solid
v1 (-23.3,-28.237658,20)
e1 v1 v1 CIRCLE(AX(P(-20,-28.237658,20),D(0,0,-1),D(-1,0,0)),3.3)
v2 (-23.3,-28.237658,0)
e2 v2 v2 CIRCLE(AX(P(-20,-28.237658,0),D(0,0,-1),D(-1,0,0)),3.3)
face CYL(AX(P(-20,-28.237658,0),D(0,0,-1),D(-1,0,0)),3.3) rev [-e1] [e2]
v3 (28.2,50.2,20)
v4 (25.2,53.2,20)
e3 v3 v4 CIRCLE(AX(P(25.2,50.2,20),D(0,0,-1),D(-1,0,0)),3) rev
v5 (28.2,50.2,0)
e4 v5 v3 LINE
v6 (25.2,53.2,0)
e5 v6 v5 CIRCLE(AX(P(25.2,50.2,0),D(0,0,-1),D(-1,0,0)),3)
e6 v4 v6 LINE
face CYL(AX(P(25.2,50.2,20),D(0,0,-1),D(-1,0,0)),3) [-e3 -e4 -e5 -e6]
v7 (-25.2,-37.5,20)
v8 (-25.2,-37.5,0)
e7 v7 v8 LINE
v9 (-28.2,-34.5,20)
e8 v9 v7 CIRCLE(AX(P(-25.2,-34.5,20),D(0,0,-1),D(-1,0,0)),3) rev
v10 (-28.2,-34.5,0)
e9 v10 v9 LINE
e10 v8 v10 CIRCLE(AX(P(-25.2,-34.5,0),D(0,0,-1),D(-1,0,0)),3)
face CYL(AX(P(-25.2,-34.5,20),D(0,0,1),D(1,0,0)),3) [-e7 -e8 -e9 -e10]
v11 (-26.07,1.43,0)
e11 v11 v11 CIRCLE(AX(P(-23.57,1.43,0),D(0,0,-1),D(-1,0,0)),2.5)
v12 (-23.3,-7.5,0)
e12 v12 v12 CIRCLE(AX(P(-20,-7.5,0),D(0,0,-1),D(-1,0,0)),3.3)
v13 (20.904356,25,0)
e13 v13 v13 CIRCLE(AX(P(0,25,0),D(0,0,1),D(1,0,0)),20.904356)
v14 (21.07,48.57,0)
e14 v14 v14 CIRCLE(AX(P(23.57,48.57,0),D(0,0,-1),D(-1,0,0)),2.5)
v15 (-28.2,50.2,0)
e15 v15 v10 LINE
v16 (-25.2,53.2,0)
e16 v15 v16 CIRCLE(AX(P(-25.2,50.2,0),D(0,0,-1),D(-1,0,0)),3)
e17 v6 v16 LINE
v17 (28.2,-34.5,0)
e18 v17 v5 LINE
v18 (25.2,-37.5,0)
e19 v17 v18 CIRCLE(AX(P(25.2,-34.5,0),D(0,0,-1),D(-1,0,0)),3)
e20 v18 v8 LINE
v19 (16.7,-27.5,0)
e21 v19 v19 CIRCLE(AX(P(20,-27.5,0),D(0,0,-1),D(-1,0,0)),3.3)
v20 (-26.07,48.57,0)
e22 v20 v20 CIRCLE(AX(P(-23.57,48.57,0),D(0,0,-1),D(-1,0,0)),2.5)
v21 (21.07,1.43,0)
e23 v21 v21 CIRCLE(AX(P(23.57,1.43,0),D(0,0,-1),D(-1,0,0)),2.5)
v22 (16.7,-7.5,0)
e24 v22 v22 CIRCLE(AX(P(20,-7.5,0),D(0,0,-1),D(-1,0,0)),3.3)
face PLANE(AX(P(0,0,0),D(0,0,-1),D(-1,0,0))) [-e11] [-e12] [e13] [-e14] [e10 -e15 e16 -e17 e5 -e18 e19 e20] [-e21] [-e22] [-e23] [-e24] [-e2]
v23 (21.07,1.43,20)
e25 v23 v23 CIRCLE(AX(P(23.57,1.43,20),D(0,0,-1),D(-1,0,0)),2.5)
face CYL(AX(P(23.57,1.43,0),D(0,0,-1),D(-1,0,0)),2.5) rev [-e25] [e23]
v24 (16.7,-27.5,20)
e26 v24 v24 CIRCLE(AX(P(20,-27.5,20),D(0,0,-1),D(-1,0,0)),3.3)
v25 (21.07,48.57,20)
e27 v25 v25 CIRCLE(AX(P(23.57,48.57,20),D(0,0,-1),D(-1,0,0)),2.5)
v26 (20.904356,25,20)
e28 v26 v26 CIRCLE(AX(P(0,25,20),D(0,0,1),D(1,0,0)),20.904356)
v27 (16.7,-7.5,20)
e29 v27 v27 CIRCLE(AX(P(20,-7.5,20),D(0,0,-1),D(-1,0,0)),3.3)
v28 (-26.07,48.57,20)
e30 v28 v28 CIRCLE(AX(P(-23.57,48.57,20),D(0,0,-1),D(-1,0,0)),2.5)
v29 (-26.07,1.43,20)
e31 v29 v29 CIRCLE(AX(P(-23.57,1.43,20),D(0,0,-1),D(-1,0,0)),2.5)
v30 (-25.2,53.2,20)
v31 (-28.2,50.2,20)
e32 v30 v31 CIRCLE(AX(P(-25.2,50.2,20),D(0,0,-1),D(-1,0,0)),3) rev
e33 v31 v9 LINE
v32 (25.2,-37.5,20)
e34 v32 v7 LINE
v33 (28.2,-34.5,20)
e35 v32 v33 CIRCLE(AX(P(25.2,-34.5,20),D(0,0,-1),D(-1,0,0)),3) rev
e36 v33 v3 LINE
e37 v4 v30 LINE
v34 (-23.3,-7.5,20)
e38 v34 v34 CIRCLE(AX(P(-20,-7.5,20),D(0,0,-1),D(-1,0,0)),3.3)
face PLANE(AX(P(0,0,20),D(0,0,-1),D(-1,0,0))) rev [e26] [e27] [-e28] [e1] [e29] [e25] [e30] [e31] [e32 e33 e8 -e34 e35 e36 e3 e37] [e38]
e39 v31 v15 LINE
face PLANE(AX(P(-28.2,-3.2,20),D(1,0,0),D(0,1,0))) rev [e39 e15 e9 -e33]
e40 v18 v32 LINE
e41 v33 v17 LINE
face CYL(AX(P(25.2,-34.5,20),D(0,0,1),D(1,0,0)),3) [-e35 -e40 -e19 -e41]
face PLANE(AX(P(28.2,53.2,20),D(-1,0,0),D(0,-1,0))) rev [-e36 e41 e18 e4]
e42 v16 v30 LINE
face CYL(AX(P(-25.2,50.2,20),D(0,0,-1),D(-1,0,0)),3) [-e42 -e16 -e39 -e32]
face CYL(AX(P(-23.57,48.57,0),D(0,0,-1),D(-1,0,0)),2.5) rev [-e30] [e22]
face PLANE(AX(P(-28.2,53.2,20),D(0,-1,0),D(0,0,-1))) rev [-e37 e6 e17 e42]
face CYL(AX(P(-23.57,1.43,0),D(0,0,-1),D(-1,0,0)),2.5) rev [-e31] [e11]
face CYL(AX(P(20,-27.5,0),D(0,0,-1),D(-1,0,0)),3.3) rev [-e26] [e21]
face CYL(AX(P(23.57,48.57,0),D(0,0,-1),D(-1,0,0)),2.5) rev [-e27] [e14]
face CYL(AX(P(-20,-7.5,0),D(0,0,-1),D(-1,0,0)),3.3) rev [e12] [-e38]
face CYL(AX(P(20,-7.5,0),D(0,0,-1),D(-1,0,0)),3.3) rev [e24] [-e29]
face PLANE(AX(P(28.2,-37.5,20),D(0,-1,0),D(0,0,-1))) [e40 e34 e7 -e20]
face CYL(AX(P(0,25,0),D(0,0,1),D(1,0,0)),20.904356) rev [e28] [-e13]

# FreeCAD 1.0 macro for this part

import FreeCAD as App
import Part
import Sketcher

V = App.Vector
Q = App.Units.Quantity


def edges_at(feature, points):
    """Names of the edges that pass closest to the given points."""
    edges = feature.Shape.Edges
    near = lambda p: min(range(len(edges)), key=lambda i: edges[i].distToShape(Part.Vertex(*p))[0])
    return sorted({f"Edge{near(p) + 1}" for p in points})

doc = App.newDocument("Part")
body = doc.addObject("PartDesign::Body", "Body")

sketch1 = body.newObject("Sketcher::SketchObject", "Sketch")
sketch1.AttachmentSupport = (doc.getObject("XY_Plane"), [""])
sketch1.MapMode = "FlatFace"
sketch1.addGeometry(Part.LineSegment(V(-28.2, 53.2, 0), V(-28.2, -3.2, 0)), False)
sketch1.addGeometry(Part.LineSegment(V(-28.2, -3.2, 0), V(28.2, -3.2, 0)), False)
sketch1.addGeometry(Part.LineSegment(V(28.2, -3.2, 0), V(28.2, 53.2, 0)), False)
sketch1.addGeometry(Part.LineSegment(V(28.2, 53.2, 0), V(-28.2, 53.2, 0)), False)
sketch1.addConstraint(Sketcher.Constraint("Coincident", 0, 2, 1, 1))
sketch1.addConstraint(Sketcher.Constraint("Coincident", 1, 2, 2, 1))
sketch1.addConstraint(Sketcher.Constraint("Coincident", 2, 2, 3, 1))
sketch1.addConstraint(Sketcher.Constraint("Coincident", 3, 2, 0, 1))
sketch1.addConstraint(Sketcher.Constraint("Vertical", 0))
sketch1.addConstraint(Sketcher.Constraint("Horizontal", 1))
sketch1.addConstraint(Sketcher.Constraint("Vertical", 2))
sketch1.addConstraint(Sketcher.Constraint("Horizontal", 3))
sketch1.addConstraint(Sketcher.Constraint("Equal", 3, 0))
sketch1.addConstraint(Sketcher.Constraint("DistanceX", 1, 1, 1, 2, Q("56.4 mm")))
sketch1.addConstraint(Sketcher.Constraint("DistanceX", 0, 2, -1, 1, Q("28.2 mm")))
sketch1.addConstraint(Sketcher.Constraint("DistanceY", 0, 2, -1, 1, Q("3.2 mm")))
pad1 = body.newObject("PartDesign::Pad", "Pad")
pad1.Profile = sketch1
pad1.Length = 20

sketch2 = body.newObject("Sketcher::SketchObject", "Sketch001")
sketch2.AttachmentSupport = (doc.getObject("XY_Plane"), [""])
sketch2.MapMode = "FlatFace"
sketch2.AttachmentOffset = App.Placement(V(0, 0, 20), App.Rotation())
sketch2.addGeometry(Part.Circle(V(0, 25, 0), V(0, 0, 1), 20.904356), False)
sketch2.addConstraint(Sketcher.Constraint("PointOnObject", 0, 3, -2))
sketch2.addConstraint(Sketcher.Constraint("DistanceY", -1, 1, 0, 3, Q("25 mm")))
sketch2.addConstraint(Sketcher.Constraint("Diameter", 0, Q("41.808711 mm")))
pocket1 = body.newObject("PartDesign::Pocket", "Pocket")
pocket1.Profile = sketch2
pocket1.Length = 20

sketch3 = body.newObject("Sketcher::SketchObject", "Sketch002")
sketch3.AttachmentSupport = (doc.getObject("XY_Plane"), [""])
sketch3.MapMode = "FlatFace"
sketch3.addGeometry(Part.LineSegment(V(28.2, -3.2, 0), V(28.2, -37.5, 0)), False)
sketch3.addGeometry(Part.LineSegment(V(28.2, -37.5, 0), V(-28.2, -37.5, 0)), False)
sketch3.addGeometry(Part.LineSegment(V(-28.2, -37.5, 0), V(-28.2, -3.2, 0)), False)
sketch3.addGeometry(Part.LineSegment(V(-28.2, -3.2, 0), V(28.2, -3.2, 0)), False)
sketch3.addConstraint(Sketcher.Constraint("Coincident", 0, 2, 1, 1))
sketch3.addConstraint(Sketcher.Constraint("Coincident", 1, 2, 2, 1))
sketch3.addConstraint(Sketcher.Constraint("Coincident", 2, 2, 3, 1))
sketch3.addConstraint(Sketcher.Constraint("Coincident", 3, 2, 0, 1))
sketch3.addConstraint(Sketcher.Constraint("Vertical", 0))
sketch3.addConstraint(Sketcher.Constraint("Horizontal", 1))
sketch3.addConstraint(Sketcher.Constraint("Vertical", 2))
sketch3.addConstraint(Sketcher.Constraint("Horizontal", 3))
sketch3.addConstraint(Sketcher.Constraint("DistanceX", 1, 2, 1, 1, Q("56.4 mm")))
sketch3.addConstraint(Sketcher.Constraint("DistanceY", 0, 2, 0, 1, Q("34.3 mm")))
sketch3.addConstraint(Sketcher.Constraint("DistanceX", -1, 1, 0, 2, Q("28.2 mm")))
sketch3.addConstraint(Sketcher.Constraint("DistanceY", 0, 2, -1, 1, Q("37.5 mm")))
pad2 = body.newObject("PartDesign::Pad", "Pad001")
pad2.Profile = sketch3
pad2.Length = 20
doc.recompute()

fillet = body.newObject("PartDesign::Fillet", "Fillet")
fillet.Base = (pad2, edges_at(pad2, [
    (28.2, -37.5, 10),
    (-28.2, -37.5, 10),
    (28.2, 53.2, 10),
    (-28.2, 53.2, 10),
]))
fillet.Radius = 3

sketch4 = body.newObject("Sketcher::SketchObject", "Sketch003")
sketch4.AttachmentSupport = (doc.getObject("XY_Plane"), [""])
sketch4.MapMode = "FlatFace"
sketch4.addGeometry(Part.Circle(V(23.57, 48.57, 0), V(0, 0, 1), 2.5), False)
sketch4.addGeometry(Part.Circle(V(-23.57, 48.57, 0), V(0, 0, 1), 2.5), False)
sketch4.addGeometry(Part.Circle(V(23.57, 1.43, 0), V(0, 0, 1), 2.5), False)
sketch4.addGeometry(Part.Circle(V(-23.57, 1.43, 0), V(0, 0, 1), 2.5), False)
sketch4.addConstraint(Sketcher.Constraint("Equal", 0, 1))
sketch4.addConstraint(Sketcher.Constraint("Equal", 1, 2))
sketch4.addConstraint(Sketcher.Constraint("Equal", 2, 3))
sketch4.addConstraint(Sketcher.Constraint("Symmetric", 0, 3, 1, 3, -2))
sketch4.addConstraint(Sketcher.Constraint("Symmetric", 2, 3, 3, 3, -2))
sketch4.addConstraint(Sketcher.Constraint("Vertical", 0, 3, 2, 3))
sketch4.addConstraint(Sketcher.Constraint("Diameter", 0, Q("5 mm")))
sketch4.addConstraint(Sketcher.Constraint("DistanceX", -1, 1, 0, 3, Q("23.57 mm")))
sketch4.addConstraint(Sketcher.Constraint("DistanceY", -1, 1, 0, 3, Q("48.57 mm")))
sketch4.addConstraint(Sketcher.Constraint("DistanceY", -1, 1, 2, 3, Q("1.43 mm")))
doc.recompute()
hole = body.newObject("PartDesign::Hole", "Hole")
hole.Profile = sketch4
hole.ThreadType = "None"
hole.Diameter = 5
hole.DepthType = "ThroughAll"
hole.Reversed = True

sketch5 = body.newObject("Sketcher::SketchObject", "Sketch004")
sketch5.AttachmentSupport = (doc.getObject("XY_Plane"), [""])
sketch5.MapMode = "FlatFace"
sketch5.addGeometry(Part.Circle(V(20, -7.5, 0), V(0, 0, 1), 3.3), False)
sketch5.addGeometry(Part.Circle(V(20, -27.5, 0), V(0, 0, 1), 3.3), False)
sketch5.addGeometry(Part.Circle(V(-20, -28.237658, 0), V(0, 0, 1), 3.3), False)
sketch5.addGeometry(Part.Circle(V(-20, -7.5, 0), V(0, 0, 1), 3.3), False)
sketch5.addConstraint(Sketcher.Constraint("Equal", 0, 1))
sketch5.addConstraint(Sketcher.Constraint("Equal", 1, 2))
sketch5.addConstraint(Sketcher.Constraint("Equal", 2, 3))
sketch5.addConstraint(Sketcher.Constraint("Symmetric", 0, 3, 3, 3, -2))
sketch5.addConstraint(Sketcher.Constraint("Vertical", 0, 3, 1, 3))
sketch5.addConstraint(Sketcher.Constraint("Vertical", 2, 3, 3, 3))
sketch5.addConstraint(Sketcher.Constraint("Diameter", 0, Q("6.6 mm")))
sketch5.addConstraint(Sketcher.Constraint("DistanceX", -1, 1, 0, 3, Q("20 mm")))
sketch5.addConstraint(Sketcher.Constraint("DistanceY", 1, 3, 0, 3, Q("20 mm")))
sketch5.addConstraint(Sketcher.Constraint("DistanceY", 0, 3, -1, 1, Q("7.5 mm")))
sketch5.addConstraint(Sketcher.Constraint("DistanceY", 2, 3, -1, 1, Q("28.237658 mm")))
doc.recompute()
hole2 = body.newObject("PartDesign::Hole", "Hole001")
hole2.Profile = sketch5
hole2.ThreadType = "None"
hole2.Diameter = 6.6
hole2.DepthType = "ThroughAll"
hole2.Reversed = True

doc.recompute()
